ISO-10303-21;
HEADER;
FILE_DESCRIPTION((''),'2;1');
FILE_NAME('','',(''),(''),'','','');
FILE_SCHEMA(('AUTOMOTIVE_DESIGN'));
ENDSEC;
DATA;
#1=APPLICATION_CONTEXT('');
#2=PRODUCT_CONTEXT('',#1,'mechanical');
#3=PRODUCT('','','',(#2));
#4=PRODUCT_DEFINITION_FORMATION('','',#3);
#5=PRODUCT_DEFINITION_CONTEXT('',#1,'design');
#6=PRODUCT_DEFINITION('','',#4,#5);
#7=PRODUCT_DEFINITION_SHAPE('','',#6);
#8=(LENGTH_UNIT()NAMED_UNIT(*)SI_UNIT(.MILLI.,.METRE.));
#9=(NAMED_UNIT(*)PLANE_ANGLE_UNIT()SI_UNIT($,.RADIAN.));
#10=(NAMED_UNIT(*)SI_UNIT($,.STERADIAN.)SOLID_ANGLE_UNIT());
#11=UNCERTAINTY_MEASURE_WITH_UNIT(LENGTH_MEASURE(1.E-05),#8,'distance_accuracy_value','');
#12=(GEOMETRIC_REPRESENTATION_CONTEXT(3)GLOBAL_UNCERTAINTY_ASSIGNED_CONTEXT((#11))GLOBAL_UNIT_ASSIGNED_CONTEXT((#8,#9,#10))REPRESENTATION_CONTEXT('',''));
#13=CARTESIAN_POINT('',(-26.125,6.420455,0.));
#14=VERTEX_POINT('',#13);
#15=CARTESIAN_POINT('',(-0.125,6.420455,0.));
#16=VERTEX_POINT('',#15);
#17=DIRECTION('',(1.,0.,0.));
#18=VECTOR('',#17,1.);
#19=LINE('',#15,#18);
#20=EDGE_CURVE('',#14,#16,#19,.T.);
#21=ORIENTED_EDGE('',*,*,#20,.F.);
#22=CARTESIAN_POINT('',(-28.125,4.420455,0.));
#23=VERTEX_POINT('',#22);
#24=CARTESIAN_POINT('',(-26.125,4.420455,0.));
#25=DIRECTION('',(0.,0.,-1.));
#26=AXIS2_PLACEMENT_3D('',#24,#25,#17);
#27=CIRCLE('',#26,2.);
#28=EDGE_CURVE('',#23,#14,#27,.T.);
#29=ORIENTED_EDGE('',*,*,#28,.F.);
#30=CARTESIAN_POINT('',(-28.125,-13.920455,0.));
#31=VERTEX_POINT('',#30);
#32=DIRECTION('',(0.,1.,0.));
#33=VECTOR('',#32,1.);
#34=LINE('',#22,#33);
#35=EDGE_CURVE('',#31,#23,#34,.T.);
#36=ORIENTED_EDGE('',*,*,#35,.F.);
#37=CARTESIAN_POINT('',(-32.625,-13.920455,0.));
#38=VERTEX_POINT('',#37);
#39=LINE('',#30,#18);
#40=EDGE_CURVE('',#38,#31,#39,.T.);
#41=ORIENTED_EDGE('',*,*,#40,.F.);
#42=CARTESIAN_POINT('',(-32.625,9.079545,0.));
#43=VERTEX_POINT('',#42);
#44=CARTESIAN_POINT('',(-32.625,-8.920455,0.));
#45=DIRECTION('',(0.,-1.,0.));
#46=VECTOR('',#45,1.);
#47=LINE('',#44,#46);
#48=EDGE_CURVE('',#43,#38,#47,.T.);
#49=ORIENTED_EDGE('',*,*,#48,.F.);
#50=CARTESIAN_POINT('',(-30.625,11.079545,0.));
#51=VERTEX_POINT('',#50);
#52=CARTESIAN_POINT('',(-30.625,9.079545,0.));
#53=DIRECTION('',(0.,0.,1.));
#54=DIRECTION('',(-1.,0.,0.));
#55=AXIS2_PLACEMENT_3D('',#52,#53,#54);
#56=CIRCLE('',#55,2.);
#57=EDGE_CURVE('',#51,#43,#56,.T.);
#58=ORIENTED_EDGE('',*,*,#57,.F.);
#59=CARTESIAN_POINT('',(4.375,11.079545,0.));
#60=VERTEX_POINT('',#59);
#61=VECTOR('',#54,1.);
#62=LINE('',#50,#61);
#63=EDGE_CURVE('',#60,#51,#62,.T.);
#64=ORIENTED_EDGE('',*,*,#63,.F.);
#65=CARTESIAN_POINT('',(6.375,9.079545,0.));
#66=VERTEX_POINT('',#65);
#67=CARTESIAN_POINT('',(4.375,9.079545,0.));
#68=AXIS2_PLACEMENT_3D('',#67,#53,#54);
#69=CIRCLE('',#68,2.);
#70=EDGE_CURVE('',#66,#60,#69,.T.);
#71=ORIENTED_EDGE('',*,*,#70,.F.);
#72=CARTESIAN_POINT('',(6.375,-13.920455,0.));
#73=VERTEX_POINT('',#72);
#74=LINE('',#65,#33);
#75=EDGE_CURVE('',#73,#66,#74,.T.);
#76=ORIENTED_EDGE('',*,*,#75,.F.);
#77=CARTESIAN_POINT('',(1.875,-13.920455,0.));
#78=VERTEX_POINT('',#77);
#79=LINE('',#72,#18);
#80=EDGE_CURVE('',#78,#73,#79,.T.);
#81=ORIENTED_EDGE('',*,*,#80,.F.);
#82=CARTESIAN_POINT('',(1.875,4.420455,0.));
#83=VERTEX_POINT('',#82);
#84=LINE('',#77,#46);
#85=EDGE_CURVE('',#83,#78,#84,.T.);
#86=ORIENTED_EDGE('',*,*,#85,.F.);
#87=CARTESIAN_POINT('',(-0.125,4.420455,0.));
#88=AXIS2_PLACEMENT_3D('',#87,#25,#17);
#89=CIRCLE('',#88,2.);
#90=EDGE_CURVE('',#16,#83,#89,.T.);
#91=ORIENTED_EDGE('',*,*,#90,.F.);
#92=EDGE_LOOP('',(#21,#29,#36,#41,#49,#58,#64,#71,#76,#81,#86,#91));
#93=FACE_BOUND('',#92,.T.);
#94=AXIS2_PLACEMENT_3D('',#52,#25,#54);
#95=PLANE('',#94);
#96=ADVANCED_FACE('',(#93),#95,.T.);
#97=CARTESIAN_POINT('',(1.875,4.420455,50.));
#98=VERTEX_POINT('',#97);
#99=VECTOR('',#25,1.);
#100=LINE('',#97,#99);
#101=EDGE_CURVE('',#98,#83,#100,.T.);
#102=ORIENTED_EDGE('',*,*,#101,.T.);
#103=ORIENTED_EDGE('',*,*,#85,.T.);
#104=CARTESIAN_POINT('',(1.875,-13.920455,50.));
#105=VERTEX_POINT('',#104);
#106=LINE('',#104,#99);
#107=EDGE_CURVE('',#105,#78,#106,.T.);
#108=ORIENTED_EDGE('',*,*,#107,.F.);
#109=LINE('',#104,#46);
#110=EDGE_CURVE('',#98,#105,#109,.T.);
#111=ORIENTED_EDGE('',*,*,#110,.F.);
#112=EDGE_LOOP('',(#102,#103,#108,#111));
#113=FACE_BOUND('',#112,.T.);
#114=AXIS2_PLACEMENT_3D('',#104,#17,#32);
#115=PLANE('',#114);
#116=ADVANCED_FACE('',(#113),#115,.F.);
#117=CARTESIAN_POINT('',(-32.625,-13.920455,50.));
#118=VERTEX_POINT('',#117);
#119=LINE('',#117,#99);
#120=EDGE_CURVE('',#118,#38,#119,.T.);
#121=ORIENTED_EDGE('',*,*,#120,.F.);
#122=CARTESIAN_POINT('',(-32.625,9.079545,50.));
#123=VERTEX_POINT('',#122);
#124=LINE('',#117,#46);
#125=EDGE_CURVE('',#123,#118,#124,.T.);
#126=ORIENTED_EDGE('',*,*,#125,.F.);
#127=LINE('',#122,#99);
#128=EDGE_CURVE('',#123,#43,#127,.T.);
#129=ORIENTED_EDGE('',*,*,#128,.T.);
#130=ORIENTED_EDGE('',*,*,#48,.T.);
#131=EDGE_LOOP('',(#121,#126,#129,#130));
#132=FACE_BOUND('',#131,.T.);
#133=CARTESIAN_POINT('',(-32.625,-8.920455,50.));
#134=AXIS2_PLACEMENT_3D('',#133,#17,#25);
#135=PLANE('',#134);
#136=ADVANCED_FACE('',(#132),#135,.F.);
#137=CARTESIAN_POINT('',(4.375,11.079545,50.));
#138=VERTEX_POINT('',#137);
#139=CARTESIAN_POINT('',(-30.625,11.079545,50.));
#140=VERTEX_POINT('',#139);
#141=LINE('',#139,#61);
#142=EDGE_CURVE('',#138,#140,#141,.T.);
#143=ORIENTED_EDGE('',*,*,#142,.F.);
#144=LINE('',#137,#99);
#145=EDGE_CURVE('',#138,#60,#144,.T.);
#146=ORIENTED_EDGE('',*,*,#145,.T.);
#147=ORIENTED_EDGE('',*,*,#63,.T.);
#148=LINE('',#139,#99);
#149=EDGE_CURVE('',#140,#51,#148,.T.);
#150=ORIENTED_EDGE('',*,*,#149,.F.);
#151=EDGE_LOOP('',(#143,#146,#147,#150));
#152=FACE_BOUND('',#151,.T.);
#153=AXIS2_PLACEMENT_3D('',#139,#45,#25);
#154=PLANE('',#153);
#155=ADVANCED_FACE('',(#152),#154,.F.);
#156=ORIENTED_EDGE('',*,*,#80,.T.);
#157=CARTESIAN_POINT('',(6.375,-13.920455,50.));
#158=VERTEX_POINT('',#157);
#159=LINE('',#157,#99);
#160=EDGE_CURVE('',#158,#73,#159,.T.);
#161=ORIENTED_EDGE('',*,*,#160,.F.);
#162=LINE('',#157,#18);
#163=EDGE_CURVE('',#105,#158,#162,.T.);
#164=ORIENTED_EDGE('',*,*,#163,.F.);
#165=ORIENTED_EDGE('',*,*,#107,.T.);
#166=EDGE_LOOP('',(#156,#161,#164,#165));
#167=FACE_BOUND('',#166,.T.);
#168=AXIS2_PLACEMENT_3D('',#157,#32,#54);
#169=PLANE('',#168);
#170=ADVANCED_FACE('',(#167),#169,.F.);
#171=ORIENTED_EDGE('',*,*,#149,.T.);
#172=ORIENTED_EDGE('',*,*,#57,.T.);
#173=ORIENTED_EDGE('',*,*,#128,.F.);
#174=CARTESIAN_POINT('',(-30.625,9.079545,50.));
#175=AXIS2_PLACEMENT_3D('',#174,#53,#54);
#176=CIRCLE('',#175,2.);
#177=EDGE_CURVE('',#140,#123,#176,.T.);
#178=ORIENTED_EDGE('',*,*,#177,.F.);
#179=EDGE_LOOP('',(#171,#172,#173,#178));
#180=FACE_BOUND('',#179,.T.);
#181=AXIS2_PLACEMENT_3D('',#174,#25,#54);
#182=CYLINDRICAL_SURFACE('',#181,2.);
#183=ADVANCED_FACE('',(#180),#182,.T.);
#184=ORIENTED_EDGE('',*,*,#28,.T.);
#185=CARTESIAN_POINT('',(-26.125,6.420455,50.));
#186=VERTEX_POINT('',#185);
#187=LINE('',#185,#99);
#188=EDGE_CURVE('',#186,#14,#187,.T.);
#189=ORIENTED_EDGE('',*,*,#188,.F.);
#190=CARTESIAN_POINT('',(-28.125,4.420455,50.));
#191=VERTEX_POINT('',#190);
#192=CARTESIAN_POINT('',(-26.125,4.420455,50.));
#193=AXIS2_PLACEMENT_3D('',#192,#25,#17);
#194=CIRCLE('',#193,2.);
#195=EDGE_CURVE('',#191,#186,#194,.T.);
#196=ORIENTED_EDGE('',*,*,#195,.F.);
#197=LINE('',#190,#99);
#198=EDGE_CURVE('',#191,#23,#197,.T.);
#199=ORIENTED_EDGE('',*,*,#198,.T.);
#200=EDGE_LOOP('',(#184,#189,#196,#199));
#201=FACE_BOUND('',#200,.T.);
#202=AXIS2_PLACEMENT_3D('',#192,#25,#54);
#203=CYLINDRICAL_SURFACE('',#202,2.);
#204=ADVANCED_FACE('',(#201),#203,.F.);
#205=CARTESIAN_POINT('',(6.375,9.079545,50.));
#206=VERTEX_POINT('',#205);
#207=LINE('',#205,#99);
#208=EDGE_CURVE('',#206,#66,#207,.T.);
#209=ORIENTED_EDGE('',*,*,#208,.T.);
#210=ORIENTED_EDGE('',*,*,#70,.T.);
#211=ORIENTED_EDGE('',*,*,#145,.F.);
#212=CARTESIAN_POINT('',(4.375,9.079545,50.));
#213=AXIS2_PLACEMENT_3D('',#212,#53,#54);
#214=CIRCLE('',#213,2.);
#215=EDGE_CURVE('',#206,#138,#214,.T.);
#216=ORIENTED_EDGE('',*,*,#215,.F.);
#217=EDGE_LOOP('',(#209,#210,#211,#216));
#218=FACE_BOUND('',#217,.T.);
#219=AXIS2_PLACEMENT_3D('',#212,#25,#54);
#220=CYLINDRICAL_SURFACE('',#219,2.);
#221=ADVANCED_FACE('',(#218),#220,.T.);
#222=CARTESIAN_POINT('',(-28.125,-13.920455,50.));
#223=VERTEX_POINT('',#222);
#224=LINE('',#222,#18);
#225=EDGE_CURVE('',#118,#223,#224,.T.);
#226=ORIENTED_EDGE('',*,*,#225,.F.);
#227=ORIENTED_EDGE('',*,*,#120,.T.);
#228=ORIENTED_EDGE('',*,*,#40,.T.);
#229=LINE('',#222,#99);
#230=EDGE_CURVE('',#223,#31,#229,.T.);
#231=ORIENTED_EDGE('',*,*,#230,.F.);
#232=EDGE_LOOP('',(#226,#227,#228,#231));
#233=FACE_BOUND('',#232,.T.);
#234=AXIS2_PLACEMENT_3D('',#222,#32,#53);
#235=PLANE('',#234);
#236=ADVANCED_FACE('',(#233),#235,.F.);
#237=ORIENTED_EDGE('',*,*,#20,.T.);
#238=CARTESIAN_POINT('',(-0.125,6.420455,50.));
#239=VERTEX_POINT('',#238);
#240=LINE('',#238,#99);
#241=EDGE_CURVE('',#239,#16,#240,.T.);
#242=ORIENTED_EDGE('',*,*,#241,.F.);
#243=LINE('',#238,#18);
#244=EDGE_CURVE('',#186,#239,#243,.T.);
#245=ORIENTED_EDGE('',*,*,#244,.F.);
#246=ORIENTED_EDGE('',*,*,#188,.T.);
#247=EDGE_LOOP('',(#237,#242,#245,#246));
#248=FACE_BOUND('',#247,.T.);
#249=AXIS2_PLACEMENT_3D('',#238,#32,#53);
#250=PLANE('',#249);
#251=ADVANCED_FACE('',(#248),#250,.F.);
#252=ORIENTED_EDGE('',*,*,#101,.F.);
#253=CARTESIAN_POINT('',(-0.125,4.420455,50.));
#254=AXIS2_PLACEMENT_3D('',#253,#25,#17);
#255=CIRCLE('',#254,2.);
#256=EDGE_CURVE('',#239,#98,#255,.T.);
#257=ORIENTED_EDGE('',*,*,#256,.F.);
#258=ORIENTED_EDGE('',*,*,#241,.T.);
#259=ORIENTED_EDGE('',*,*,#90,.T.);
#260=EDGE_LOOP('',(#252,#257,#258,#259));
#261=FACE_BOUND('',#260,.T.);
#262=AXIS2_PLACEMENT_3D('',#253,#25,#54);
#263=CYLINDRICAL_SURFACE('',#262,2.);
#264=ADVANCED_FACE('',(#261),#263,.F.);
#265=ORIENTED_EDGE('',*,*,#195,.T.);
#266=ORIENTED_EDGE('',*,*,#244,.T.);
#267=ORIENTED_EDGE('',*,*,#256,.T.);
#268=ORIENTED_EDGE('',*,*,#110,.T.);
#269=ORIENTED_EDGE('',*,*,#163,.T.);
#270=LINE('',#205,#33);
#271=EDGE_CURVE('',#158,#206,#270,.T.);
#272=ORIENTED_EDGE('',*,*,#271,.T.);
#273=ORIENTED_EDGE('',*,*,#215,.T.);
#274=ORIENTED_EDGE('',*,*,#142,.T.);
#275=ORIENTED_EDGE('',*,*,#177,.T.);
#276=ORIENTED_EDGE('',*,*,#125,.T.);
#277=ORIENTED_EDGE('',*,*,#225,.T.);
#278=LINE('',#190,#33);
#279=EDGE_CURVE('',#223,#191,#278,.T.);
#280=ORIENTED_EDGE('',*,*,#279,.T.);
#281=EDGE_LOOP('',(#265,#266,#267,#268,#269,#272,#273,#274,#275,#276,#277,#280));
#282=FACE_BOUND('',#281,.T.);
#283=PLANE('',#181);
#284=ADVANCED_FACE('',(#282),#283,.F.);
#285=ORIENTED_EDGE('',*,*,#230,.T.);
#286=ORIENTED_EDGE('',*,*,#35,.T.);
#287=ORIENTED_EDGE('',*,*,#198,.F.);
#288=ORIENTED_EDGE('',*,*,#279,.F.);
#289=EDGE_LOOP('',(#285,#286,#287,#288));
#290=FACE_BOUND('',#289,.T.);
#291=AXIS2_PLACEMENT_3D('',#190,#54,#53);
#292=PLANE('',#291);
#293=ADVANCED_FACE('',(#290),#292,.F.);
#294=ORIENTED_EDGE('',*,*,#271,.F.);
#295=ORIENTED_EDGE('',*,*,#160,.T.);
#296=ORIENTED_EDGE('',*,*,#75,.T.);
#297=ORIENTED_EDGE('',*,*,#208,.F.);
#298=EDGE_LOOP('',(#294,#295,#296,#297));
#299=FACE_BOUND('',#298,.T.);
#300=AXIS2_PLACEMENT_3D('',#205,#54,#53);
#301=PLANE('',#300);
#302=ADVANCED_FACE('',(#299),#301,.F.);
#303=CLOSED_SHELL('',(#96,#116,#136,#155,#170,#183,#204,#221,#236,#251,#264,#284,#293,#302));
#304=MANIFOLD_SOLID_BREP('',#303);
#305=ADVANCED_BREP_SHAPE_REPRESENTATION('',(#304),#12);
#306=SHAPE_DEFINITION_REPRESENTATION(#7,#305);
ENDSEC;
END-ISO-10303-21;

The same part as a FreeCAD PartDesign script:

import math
import FreeCAD as App
import Part
import Sketcher

doc = App.newDocument("Part")
params = doc.addObject("Spreadsheet::Sheet", "Params")
for row, (alias, value) in enumerate([
    ("sketch1_radius", "2 mm"),
    ("sketch1_width", "26 mm"),
    ("sketch1_width2", "35 mm"),
    ("sketch1_height", "23 mm"),
    ("pad1_length", "50 mm"),
], start=1):
    params.set(f"A{row}", alias)
    params.set(f"B{row}", "=" + value)
    params.setAlias(f"B{row}", alias)

body = doc.addObject("PartDesign::Body", "Body")

sketch1 = doc.addObject("Sketcher::SketchObject", "Sketch")
body.addObject(sketch1)
sketch1.AttachmentSupport = (doc.XY_Plane, [""])
sketch1.MapMode = "FlatFace"
sketch1.addGeometry([
    Part.ArcOfCircle(Part.Circle(App.Vector(-30.6, 9.1, 0), App.Vector(0, 0, 1), 2), math.radians(90), math.radians(180)),
    Part.LineSegment(App.Vector(-32.6, 9.1, 0), App.Vector(-32.6, -13.9, 0)),
    Part.LineSegment(App.Vector(-32.6, -13.9, 0), App.Vector(-28.1, -13.9, 0)),
    Part.LineSegment(App.Vector(-28.1, -13.9, 0), App.Vector(-28.1, 4.4, 0)),
    Part.ArcOfCircle(Part.Circle(App.Vector(-26.1, 4.4, 0), App.Vector(0, 0, 1), 2), math.radians(90), math.radians(180)),
    Part.LineSegment(App.Vector(-26.1, 6.4, 0), App.Vector(-0.1, 6.4, 0)),
    Part.ArcOfCircle(Part.Circle(App.Vector(-0.1, 4.4, 0), App.Vector(0, 0, 1), 2), math.radians(0), math.radians(90)),
    Part.LineSegment(App.Vector(1.9, 4.4, 0), App.Vector(1.9, -13.9, 0)),
    Part.LineSegment(App.Vector(1.9, -13.9, 0), App.Vector(6.4, -13.9, 0)),
    Part.LineSegment(App.Vector(6.4, -13.9, 0), App.Vector(6.4, 9.1, 0)),
    Part.ArcOfCircle(Part.Circle(App.Vector(4.4, 9.1, 0), App.Vector(0, 0, 1), 2), math.radians(0), math.radians(90)),
    Part.LineSegment(App.Vector(4.4, 11.1, 0), App.Vector(-30.6, 11.1, 0)),
], False)
sketch1.addConstraint([
    Sketcher.Constraint("Tangent", 0, 2, 1, 1),
    Sketcher.Constraint("Coincident", 1, 2, 2, 1),
    Sketcher.Constraint("Coincident", 2, 2, 3, 1),
    Sketcher.Constraint("Tangent", 3, 2, 4, 2),
    Sketcher.Constraint("Tangent", 4, 1, 5, 1),
    Sketcher.Constraint("Tangent", 5, 2, 6, 2),
    Sketcher.Constraint("Tangent", 6, 1, 7, 1),
    Sketcher.Constraint("Coincident", 7, 2, 8, 1),
    Sketcher.Constraint("Coincident", 8, 2, 9, 1),
    Sketcher.Constraint("Tangent", 9, 2, 10, 1),
    Sketcher.Constraint("Tangent", 10, 2, 11, 1),
    Sketcher.Constraint("Tangent", 11, 2, 0, 1),
    Sketcher.Constraint("Vertical", 1),
    Sketcher.Constraint("Horizontal", 2),
    Sketcher.Constraint("Vertical", 3),
    Sketcher.Constraint("Horizontal", 5),
    Sketcher.Constraint("Vertical", 7),
    Sketcher.Constraint("Horizontal", 8),
    Sketcher.Constraint("Vertical", 9),
    Sketcher.Constraint("Horizontal", 11),
    Sketcher.Constraint("Equal", 0, 4),
    Sketcher.Constraint("Equal", 4, 6),
    Sketcher.Constraint("Equal", 6, 10),
    Sketcher.Constraint("Horizontal", 2, 2, 7, 2),
    Sketcher.Constraint("Equal", 2, 8),
    Sketcher.Constraint("Radius", 0, 2.0),
    Sketcher.Constraint("DistanceX", 5, 1, 5, 2, 26.0),
    Sketcher.Constraint("DistanceX", 11, 2, 11, 1, 35.0),
    Sketcher.Constraint("DistanceY", 1, 2, 1, 1, 23.0),
    Sketcher.Constraint("DistanceX", 0, 3, -1, 1, 30.625),
    Sketcher.Constraint("DistanceY", 3, 1, 3, 2, 18.340909),
    Sketcher.Constraint("DistanceY", -1, 1, 0, 3, 9.079545),
])
sketch1.setExpression("Constraints[25]", "Params.sketch1_radius")
sketch1.setExpression("Constraints[26]", "Params.sketch1_width")
sketch1.setExpression("Constraints[27]", "Params.sketch1_width2")
sketch1.setExpression("Constraints[28]", "Params.sketch1_height")
pad1 = doc.addObject("PartDesign::Pad", "Pad")
body.addObject(pad1)
pad1.Profile = sketch1
pad1.setExpression("Length", "Params.pad1_length")

doc.recompute()
